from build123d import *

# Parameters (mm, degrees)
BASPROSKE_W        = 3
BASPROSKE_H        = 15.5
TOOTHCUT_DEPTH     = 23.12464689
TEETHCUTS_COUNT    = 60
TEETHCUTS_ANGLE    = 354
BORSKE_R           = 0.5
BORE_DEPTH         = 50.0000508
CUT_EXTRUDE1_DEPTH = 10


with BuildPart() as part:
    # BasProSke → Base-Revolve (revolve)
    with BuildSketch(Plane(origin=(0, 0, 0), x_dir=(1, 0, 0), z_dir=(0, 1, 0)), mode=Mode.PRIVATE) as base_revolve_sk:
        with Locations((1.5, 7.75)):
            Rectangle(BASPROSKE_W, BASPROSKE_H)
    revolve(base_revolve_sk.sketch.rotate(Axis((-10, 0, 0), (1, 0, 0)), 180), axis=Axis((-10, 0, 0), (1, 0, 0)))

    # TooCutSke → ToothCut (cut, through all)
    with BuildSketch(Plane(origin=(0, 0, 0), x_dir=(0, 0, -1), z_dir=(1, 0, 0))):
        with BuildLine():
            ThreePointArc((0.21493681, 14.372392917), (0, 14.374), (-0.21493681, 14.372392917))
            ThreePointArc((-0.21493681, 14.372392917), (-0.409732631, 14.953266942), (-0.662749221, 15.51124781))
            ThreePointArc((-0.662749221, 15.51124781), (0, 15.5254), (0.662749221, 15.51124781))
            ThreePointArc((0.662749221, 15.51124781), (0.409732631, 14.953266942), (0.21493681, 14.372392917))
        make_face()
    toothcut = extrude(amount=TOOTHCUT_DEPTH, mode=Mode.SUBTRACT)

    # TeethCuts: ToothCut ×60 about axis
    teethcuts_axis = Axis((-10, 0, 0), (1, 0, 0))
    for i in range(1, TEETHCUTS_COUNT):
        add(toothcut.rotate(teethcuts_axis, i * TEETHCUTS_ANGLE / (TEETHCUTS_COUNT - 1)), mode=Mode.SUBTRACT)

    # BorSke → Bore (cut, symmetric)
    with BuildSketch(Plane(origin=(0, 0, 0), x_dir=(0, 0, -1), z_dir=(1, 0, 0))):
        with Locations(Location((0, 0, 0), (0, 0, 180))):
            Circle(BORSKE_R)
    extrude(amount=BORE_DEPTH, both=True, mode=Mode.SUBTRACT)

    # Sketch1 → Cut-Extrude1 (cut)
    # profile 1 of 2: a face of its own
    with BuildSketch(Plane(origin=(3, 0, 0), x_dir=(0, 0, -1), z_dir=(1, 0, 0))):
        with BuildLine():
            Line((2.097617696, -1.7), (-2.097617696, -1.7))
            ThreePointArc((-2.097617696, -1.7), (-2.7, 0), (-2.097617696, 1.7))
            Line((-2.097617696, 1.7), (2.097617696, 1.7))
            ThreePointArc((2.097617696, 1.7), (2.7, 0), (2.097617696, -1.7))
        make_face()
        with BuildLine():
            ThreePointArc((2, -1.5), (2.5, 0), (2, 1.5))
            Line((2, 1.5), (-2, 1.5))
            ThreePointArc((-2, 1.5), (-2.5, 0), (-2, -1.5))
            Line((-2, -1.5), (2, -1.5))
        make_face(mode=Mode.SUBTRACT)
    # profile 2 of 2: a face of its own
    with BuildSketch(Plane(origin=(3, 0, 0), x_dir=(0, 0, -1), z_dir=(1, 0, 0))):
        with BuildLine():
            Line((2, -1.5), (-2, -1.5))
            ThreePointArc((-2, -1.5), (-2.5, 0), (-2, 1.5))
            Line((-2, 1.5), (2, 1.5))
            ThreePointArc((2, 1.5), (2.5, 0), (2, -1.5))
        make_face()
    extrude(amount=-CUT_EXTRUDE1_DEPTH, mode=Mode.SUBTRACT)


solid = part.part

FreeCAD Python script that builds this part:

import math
import FreeCAD as App
import Part
import Sketcher
from FreeCAD import Vector


def add_polygon(sketch, points):
    """Adds a closed chain of lines whose ends are joined by coincident constraints."""
    first, n = sketch.GeometryCount, len(points)
    for a, b in zip(points, points[1:] + points[:1]):
        sketch.addGeometry(Part.LineSegment(App.Vector(*a, 0), App.Vector(*b, 0)), False)
    for i in range(n):
        sketch.addConstraint(Sketcher.Constraint("Coincident", first + i, 2, first + (i + 1) % n, 1))

doc = App.newDocument("Part")
body = doc.addObject("PartDesign::Body", "Body")

# Sketch on XZ plane
sketch1 = body.newObject("Sketcher::SketchObject", "Sketch")
sketch1.AttachmentSupport = (doc.getObject("XZ_Plane"), [""])
sketch1.MapMode = "FlatFace"
add_polygon(sketch1, [(0, -15.5), (0, 0), (3, 0), (3, -15.5)])  # lines 0-3
sketch1.addConstraint(Sketcher.Constraint("Vertical", 0))
sketch1.addConstraint(Sketcher.Constraint("Horizontal", 1))
sketch1.addConstraint(Sketcher.Constraint("Vertical", 2))
sketch1.addConstraint(Sketcher.Constraint("Horizontal", 3))
sketch1.addConstraint(Sketcher.Constraint("Coincident", 0, 2, -1, 1))
sketch1.addConstraint(Sketcher.Constraint("DistanceX", 1, 1, 1, 2, 3.0))
sketch1.addConstraint(Sketcher.Constraint("DistanceY", 0, 1, 0, 2, 15.5))
revolution = body.newObject("PartDesign::Revolution", "Revolution")
revolution.Profile = sketch1
revolution.ReferenceAxis = (sketch1, ["H_Axis"])
revolution.Angle = 360

# Sketch on YZ plane
sketch2 = body.newObject("Sketcher::SketchObject", "Sketch001")
sketch2.AttachmentSupport = (doc.getObject("YZ_Plane"), [""])
sketch2.MapMode = "FlatFace"
sketch2.addGeometry(Part.ArcOfCircle(Part.Circle(Vector(0, 0, 0), Vector(0, 0, 1), 14.37), math.radians(-0.86), math.radians(0.86)), False)
sketch2.addGeometry(Part.ArcOfCircle(Part.Circle(Vector(12.76, -5.99, 0), Vector(0, 0, 1), 6), math.radians(62.68), math.radians(74.39)), False)
sketch2.addGeometry(Part.ArcOfCircle(Part.Circle(Vector(0, 0, 0), Vector(0, 0, 1), 15.53), math.radians(-2.45), math.radians(2.45)), False)
sketch2.addGeometry(Part.ArcOfCircle(Part.Circle(Vector(12.76, 5.99, 0), Vector(0, 0, 1), 6), math.radians(-74.39), math.radians(-62.68)), False)
sketch2.addConstraint(Sketcher.Constraint("Coincident", 0, 1, 1, 2))
sketch2.addConstraint(Sketcher.Constraint("Coincident", 1, 1, 2, 1))
sketch2.addConstraint(Sketcher.Constraint("Coincident", 2, 2, 3, 2))
sketch2.addConstraint(Sketcher.Constraint("Coincident", 3, 1, 0, 2))
sketch2.addConstraint(Sketcher.Constraint("Coincident", 0, 3, -1, 1))
sketch2.addConstraint(Sketcher.Constraint("Coincident", 2, 3, -1, 1))
sketch2.addConstraint(Sketcher.Constraint("Equal", 1, 3))
sketch2.addConstraint(Sketcher.Constraint("Symmetric", 1, 3, 3, 3, -1))
sketch2.addConstraint(Sketcher.Constraint("Radius", 1, 6.0))
sketch2.addConstraint(Sketcher.Constraint("Radius", 2, 15.5254))
sketch2.addConstraint(Sketcher.Constraint("Radius", 0, 14.373998))
sketch2.addConstraint(Sketcher.Constraint("DistanceY", 1, 1, 2, 2, 1.325498))
sketch2.addConstraint(Sketcher.Constraint("DistanceX", 0, 3, 1, 3, 12.75763))
pocket1 = body.newObject("PartDesign::Pocket", "Pocket")
pocket1.Profile = sketch2
pocket1.Type = "ThroughAll"
pocket1.Reversed = True
doc.recompute()

polarpattern = body.newObject("PartDesign::PolarPattern", "PolarPattern")
polarpattern.Originals = [pocket1]
polarpattern.Axis = (doc.getObject("X_Axis"), [""])
polarpattern.Angle = 360
polarpattern.Occurrences = 60
body.Tip = polarpattern

# Sketch on YZ plane
sketch3 = body.newObject("Sketcher::SketchObject", "Sketch002")
sketch3.AttachmentSupport = (doc.getObject("YZ_Plane"), [""])
sketch3.MapMode = "FlatFace"
sketch3.addGeometry(Part.Circle(Vector(0, 0, 0), Vector(0, 0, 1), 0.5), False)
sketch3.addConstraint(Sketcher.Constraint("Coincident", 0, 3, -1, 1))
sketch3.addConstraint(Sketcher.Constraint("Diameter", 0, 1.0))
pocket2 = body.newObject("PartDesign::Pocket", "Pocket001")
pocket2.Profile = sketch3
pocket2.Length = 100.000102
pocket2.Midplane = True

# Sketch on YZ plane
sketch4 = body.newObject("Sketcher::SketchObject", "Sketch003")
sketch4.AttachmentSupport = (doc.getObject("YZ_Plane"), [""])
sketch4.MapMode = "FlatFace"
sketch4.AttachmentOffset = App.Placement(Vector(0, 0, 3), App.Rotation())
sketch4.addGeometry(Part.LineSegment(Vector(-1.7, 2.1, 0), Vector(-1.7, -2.1, 0)), False)
sketch4.addGeometry(Part.ArcOfCircle(Part.Circle(Vector(0, 0, 0), Vector(0, 0, 1), 2.7), math.radians(-129), math.radians(-51)), False)
sketch4.addGeometry(Part.LineSegment(Vector(1.7, -2.1, 0), Vector(1.7, 2.1, 0)), False)
sketch4.addGeometry(Part.ArcOfCircle(Part.Circle(Vector(0, 0, 0), Vector(0, 0, 1), 2.7), math.radians(51), math.radians(129)), False)
sketch4.addConstraint(Sketcher.Constraint("Coincident", 0, 2, 1, 1))
sketch4.addConstraint(Sketcher.Constraint("Coincident", 1, 2, 2, 1))
sketch4.addConstraint(Sketcher.Constraint("Coincident", 2, 2, 3, 1))
sketch4.addConstraint(Sketcher.Constraint("Coincident", 3, 2, 0, 1))
sketch4.addConstraint(Sketcher.Constraint("Vertical", 0))
sketch4.addConstraint(Sketcher.Constraint("Vertical", 2))
sketch4.addConstraint(Sketcher.Constraint("Coincident", 1, 3, -1, 1))
sketch4.addConstraint(Sketcher.Constraint("Coincident", 3, 3, -1, 1))
sketch4.addConstraint(Sketcher.Constraint("Equal", 1, 3))
sketch4.addConstraint(Sketcher.Constraint("Horizontal", 0, 2, 1, 2))
sketch4.addConstraint(Sketcher.Constraint("Radius", 1, 2.7))
sketch4.addConstraint(Sketcher.Constraint("DistanceX", 0, 2, -1, 1, 1.7))
pocket3 = body.newObject("PartDesign::Pocket", "Pocket002")
pocket3.Profile = sketch4
pocket3.Length = 10

doc.recompute()
